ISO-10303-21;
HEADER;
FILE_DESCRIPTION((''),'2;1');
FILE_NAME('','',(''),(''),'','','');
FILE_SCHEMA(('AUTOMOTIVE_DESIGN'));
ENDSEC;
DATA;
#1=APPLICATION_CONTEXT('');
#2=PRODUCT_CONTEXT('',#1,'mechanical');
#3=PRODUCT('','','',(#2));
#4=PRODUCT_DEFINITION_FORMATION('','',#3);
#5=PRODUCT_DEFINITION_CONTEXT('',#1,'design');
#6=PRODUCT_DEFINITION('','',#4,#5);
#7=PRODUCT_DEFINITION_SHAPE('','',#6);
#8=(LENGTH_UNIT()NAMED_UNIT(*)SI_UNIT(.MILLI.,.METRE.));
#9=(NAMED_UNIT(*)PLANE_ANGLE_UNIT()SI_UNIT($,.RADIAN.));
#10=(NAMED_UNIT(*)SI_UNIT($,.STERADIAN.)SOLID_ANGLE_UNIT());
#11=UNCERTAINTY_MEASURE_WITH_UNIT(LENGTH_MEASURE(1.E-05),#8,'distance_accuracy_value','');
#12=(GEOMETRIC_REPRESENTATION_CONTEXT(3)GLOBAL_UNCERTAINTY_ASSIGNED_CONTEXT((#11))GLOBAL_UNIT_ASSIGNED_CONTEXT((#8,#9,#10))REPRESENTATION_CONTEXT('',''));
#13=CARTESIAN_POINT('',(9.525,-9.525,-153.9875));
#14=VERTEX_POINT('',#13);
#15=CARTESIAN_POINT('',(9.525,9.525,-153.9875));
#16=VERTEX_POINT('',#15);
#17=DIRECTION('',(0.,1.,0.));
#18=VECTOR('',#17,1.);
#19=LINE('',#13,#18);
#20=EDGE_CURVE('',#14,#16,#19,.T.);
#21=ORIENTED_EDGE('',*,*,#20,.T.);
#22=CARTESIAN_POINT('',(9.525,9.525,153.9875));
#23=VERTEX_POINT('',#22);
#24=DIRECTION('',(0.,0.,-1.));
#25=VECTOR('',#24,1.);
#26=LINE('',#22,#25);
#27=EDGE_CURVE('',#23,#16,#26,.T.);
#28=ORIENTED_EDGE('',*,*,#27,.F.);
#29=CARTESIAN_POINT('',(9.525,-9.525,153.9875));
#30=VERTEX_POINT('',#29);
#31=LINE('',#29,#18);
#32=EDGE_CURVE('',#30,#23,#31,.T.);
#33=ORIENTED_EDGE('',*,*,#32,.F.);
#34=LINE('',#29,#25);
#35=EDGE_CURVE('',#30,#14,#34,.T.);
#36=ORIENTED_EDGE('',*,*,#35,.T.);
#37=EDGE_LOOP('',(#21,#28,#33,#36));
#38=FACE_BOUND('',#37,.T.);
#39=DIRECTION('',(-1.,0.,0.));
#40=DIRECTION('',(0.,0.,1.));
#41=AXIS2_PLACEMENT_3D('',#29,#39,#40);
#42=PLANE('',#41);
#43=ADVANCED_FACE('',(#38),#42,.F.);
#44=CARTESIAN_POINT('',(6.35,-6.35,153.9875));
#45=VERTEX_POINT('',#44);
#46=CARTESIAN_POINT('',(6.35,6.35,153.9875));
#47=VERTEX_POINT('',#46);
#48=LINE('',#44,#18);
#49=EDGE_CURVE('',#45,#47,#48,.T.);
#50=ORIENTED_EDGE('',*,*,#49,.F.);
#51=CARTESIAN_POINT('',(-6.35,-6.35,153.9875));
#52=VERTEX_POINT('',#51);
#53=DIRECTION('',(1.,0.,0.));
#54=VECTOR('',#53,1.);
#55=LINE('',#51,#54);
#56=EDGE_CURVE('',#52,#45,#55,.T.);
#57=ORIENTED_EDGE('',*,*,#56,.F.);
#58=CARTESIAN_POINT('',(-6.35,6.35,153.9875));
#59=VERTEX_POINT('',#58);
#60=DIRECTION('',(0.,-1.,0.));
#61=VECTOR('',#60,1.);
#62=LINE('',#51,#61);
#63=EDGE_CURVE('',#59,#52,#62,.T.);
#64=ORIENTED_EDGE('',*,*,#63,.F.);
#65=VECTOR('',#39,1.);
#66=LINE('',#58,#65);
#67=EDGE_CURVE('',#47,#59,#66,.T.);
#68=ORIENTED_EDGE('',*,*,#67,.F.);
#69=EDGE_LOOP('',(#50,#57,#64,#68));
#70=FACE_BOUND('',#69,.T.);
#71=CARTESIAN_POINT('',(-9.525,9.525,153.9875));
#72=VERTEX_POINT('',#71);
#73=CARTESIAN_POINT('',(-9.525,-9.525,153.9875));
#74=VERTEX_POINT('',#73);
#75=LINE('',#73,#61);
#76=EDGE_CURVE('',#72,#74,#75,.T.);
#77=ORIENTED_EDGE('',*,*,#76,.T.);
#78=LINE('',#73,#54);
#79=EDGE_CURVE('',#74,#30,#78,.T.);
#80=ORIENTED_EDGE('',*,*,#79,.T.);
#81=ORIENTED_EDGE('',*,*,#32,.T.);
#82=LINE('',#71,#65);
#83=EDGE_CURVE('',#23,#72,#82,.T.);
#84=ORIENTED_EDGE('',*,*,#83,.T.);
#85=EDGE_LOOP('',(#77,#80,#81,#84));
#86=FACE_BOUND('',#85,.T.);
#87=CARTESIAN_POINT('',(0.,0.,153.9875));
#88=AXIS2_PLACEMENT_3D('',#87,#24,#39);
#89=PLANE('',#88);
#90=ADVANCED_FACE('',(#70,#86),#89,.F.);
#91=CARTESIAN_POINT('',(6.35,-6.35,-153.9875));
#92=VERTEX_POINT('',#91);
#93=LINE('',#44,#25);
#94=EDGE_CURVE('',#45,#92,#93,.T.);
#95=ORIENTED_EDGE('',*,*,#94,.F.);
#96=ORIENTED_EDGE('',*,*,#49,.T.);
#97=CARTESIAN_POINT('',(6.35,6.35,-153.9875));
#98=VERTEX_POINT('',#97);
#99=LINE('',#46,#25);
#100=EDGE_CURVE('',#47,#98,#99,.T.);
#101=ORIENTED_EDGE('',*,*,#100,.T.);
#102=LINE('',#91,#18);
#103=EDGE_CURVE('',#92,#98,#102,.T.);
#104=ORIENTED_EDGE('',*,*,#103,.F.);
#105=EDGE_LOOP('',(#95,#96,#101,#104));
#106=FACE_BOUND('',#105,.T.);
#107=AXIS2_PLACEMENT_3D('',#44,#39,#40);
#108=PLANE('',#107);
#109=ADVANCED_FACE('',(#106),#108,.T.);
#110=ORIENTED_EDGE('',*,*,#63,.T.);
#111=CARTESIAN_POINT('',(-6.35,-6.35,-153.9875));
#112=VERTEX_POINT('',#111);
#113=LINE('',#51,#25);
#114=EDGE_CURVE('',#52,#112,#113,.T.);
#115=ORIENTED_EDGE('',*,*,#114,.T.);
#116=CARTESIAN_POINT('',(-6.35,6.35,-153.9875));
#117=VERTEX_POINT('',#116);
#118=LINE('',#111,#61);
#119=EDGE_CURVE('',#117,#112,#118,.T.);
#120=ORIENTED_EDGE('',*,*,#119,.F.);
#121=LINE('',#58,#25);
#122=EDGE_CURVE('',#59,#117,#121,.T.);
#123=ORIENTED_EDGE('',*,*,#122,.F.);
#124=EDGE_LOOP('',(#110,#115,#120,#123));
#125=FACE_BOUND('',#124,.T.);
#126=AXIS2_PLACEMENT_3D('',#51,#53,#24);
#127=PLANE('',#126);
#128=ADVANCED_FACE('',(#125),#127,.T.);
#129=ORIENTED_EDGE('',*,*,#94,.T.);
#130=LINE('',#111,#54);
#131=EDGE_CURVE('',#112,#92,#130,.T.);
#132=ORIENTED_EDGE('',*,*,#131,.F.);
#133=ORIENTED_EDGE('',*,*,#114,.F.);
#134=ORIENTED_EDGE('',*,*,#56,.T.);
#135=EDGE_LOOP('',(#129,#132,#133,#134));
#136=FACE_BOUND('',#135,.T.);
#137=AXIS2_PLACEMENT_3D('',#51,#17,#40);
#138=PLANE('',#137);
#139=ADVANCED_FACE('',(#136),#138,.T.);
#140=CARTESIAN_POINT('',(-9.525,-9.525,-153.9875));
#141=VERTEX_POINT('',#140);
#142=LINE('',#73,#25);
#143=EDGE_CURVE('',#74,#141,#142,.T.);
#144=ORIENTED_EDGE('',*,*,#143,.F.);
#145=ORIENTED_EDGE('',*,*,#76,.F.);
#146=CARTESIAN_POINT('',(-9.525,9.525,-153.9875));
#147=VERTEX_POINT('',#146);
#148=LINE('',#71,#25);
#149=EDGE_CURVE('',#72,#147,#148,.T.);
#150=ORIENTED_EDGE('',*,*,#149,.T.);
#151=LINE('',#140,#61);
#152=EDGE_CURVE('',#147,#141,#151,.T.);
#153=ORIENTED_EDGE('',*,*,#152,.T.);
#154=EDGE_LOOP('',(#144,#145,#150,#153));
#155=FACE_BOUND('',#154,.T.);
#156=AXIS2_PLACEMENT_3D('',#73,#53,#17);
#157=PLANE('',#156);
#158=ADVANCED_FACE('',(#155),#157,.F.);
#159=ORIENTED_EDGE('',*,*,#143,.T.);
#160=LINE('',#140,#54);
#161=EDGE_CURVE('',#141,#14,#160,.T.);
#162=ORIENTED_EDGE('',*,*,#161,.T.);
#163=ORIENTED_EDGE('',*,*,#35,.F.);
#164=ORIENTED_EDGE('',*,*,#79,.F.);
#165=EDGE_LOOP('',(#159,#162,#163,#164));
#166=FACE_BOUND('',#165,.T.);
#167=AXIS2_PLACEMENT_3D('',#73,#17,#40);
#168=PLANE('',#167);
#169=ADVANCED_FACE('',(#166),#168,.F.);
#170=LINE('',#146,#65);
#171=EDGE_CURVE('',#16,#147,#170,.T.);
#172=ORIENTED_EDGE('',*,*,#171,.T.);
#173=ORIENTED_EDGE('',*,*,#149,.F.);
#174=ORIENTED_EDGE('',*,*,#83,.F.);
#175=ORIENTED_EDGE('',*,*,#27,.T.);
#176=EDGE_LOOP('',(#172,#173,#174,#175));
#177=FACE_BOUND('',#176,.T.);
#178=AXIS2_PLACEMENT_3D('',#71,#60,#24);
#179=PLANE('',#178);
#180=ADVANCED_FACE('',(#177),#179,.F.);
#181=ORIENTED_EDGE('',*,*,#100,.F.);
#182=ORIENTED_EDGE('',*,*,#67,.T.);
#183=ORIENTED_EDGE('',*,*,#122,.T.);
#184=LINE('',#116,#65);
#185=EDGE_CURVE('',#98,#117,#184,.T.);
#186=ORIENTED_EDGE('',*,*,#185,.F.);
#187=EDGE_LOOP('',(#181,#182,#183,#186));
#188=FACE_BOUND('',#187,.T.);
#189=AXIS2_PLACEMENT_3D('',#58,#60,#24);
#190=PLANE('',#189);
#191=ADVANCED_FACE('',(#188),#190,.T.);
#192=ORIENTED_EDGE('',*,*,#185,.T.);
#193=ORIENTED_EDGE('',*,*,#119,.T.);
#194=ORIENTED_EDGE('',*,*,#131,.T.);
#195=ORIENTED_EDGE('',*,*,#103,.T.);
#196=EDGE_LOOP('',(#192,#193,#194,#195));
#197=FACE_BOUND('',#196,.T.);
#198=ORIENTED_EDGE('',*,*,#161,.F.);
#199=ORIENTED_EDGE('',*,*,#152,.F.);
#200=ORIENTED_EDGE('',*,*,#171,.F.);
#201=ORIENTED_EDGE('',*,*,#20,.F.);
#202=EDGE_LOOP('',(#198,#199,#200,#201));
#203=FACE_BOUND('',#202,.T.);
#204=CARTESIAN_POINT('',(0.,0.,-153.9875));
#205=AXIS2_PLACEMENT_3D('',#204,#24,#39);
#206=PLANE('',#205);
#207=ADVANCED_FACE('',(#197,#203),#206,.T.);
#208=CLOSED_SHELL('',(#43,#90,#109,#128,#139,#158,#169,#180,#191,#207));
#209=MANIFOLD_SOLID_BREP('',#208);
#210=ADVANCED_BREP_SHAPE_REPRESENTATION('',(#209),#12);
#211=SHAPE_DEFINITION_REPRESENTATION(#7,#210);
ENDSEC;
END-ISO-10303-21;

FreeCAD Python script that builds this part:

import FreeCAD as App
import Part
import Sketcher

V = App.Vector
Q = App.Units.Quantity


def add_polygon(sketch, points):
    """Adds a closed chain of lines whose ends are joined by coincident constraints."""
    first, n = sketch.GeometryCount, len(points)
    for a, b in zip(points, points[1:] + points[:1]):
        sketch.addGeometry(Part.LineSegment(App.Vector(*a, 0), App.Vector(*b, 0)), False)
    for i in range(n):
        sketch.addConstraint(Sketcher.Constraint("Coincident", first + i, 2, first + (i + 1) % n, 1))

doc = App.newDocument("Part")
body = doc.addObject("PartDesign::Body", "Body")

sketch1 = body.newObject("Sketcher::SketchObject", "Sketch")
sketch1.AttachmentSupport = (doc.getObject("XY_Plane"), [""])
sketch1.MapMode = "FlatFace"
add_polygon(sketch1, [(-9.525, 9.525), (-9.525, -9.525), (9.525, -9.525), (9.525, 9.525)])
add_polygon(sketch1, [(6.35, -6.35), (-6.35, -6.35), (-6.35, 6.35), (6.35, 6.35)])
sketch1.addConstraint(Sketcher.Constraint("Vertical", 0))
sketch1.addConstraint(Sketcher.Constraint("Horizontal", 1))
sketch1.addConstraint(Sketcher.Constraint("Vertical", 2))
sketch1.addConstraint(Sketcher.Constraint("Horizontal", 3))
sketch1.addConstraint(Sketcher.Constraint("Horizontal", 4))
sketch1.addConstraint(Sketcher.Constraint("Vertical", 5))
sketch1.addConstraint(Sketcher.Constraint("Horizontal", 6))
sketch1.addConstraint(Sketcher.Constraint("Vertical", 7))
sketch1.addConstraint(Sketcher.Constraint("Symmetric", 0, 2, 2, 2, -1, 1))
sketch1.addConstraint(Sketcher.Constraint("Symmetric", 4, 2, 6, 2, -1, 1))
sketch1.addConstraint(Sketcher.Constraint("Equal", 3, 0))
sketch1.addConstraint(Sketcher.Constraint("Equal", 6, 5))
sketch1.addConstraint(Sketcher.Constraint("DistanceX", 4, 2, 4, 1, Q("0.5 in")))
sketch1.addConstraint(Sketcher.Constraint("DistanceX", 1, 1, 1, 2, Q("0.75 in")))
pad1 = body.newObject("PartDesign::Pad", "Pad")
pad1.Profile = sketch1
pad1.Length = Q("12.125 in")
pad1.Midplane = True

doc.recompute()
